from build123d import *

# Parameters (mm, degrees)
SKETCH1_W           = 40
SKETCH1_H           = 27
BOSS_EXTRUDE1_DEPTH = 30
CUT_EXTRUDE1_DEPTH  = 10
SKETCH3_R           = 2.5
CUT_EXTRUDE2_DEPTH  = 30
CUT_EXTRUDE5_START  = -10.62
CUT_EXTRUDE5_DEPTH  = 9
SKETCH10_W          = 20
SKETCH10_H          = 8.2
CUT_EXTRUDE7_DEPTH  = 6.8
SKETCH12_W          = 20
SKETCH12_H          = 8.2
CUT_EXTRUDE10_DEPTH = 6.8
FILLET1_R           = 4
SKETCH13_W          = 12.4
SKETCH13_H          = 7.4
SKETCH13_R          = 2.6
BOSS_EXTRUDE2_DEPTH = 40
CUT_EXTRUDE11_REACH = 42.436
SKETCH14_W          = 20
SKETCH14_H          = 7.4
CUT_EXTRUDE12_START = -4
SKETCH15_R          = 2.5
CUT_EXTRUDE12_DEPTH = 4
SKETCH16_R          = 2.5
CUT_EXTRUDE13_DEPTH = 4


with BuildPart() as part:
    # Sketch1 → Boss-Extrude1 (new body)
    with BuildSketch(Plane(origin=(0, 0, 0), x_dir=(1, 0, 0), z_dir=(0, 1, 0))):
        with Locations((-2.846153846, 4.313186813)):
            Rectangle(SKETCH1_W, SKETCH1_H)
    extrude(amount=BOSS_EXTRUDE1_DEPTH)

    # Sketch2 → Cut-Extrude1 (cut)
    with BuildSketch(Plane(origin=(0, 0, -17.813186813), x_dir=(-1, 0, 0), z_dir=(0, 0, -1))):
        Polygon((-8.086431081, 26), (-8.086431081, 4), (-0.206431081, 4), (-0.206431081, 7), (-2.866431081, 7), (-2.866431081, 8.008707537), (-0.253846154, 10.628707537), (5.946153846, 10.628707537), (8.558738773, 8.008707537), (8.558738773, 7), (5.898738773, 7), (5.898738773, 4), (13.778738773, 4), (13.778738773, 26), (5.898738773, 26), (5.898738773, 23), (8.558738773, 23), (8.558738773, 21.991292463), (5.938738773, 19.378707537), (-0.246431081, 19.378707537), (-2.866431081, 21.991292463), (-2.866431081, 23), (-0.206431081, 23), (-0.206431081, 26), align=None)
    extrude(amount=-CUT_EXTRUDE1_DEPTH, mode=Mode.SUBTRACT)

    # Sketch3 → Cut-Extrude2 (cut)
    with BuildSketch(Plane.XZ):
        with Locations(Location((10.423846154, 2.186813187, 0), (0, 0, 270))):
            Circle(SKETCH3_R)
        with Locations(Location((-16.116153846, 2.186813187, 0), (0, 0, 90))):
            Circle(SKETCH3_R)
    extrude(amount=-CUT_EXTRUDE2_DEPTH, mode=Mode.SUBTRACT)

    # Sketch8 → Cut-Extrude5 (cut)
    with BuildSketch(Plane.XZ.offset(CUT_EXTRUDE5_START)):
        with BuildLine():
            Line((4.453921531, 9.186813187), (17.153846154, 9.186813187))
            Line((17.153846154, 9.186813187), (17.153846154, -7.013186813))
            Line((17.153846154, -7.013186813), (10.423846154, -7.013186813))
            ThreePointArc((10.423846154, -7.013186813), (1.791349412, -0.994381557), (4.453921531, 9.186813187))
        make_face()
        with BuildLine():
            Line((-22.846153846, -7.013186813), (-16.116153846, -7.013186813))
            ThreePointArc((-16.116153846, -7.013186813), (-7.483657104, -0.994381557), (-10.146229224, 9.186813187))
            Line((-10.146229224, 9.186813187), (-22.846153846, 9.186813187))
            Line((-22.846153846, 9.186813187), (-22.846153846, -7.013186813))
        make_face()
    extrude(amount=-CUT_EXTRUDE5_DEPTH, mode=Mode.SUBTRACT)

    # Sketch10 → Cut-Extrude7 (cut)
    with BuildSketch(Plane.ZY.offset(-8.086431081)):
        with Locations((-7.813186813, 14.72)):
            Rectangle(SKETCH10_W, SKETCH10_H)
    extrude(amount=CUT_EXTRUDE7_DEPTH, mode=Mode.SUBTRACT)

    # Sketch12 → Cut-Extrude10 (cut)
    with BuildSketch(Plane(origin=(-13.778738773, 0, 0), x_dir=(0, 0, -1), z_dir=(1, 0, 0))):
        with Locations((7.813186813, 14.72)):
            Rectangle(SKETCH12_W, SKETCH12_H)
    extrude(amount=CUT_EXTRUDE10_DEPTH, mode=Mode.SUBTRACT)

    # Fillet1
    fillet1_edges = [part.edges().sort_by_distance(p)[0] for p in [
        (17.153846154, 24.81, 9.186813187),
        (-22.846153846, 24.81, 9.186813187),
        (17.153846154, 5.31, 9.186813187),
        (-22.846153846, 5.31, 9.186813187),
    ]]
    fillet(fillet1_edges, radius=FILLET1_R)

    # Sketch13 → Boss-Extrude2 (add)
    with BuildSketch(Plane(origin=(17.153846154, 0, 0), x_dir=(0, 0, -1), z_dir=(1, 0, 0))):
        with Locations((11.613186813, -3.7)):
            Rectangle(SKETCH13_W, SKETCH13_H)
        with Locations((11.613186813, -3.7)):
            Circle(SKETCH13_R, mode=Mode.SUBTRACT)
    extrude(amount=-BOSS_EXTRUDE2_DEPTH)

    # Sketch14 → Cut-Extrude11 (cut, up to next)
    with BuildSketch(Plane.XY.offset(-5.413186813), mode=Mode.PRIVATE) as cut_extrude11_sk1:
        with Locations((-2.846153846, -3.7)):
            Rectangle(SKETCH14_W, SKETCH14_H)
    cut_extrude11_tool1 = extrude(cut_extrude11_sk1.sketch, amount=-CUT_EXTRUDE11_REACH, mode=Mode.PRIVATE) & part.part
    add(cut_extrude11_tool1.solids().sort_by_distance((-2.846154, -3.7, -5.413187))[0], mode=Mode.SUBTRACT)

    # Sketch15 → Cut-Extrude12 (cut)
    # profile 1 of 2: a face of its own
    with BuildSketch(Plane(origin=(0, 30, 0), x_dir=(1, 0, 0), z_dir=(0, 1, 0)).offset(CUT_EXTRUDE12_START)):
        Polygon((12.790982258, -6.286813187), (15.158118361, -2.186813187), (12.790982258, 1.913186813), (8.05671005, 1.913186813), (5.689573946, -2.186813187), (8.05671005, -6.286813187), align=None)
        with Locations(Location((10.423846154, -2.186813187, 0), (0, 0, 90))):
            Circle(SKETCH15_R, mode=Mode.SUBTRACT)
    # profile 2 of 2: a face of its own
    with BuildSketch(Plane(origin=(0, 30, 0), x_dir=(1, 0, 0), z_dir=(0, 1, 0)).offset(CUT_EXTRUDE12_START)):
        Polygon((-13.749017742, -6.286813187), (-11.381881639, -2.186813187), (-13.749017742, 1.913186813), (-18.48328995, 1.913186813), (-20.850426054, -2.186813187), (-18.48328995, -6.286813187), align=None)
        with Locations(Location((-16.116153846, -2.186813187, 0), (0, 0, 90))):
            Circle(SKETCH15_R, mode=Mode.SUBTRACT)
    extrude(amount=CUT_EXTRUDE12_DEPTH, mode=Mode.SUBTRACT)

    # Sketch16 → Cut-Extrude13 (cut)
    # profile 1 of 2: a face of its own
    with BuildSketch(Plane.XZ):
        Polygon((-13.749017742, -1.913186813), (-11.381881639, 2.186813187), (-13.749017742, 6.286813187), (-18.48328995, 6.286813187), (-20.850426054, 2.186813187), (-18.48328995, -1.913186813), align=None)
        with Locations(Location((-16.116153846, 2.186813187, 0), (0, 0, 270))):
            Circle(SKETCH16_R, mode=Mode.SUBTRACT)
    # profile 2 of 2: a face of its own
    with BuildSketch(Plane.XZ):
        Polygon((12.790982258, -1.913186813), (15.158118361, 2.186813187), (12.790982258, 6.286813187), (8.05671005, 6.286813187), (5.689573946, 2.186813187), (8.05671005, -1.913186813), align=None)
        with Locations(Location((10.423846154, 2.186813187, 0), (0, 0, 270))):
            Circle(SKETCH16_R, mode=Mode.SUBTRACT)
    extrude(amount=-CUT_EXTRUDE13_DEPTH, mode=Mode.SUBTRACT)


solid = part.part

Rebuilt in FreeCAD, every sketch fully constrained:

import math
import FreeCAD as App
import Part
import Sketcher
from FreeCAD import Vector
Q = App.Units.Quantity


def edges_at(feature, points):
    """Names of the edges that pass closest to the given points."""
    edges = feature.Shape.Edges
    near = lambda p: min(range(len(edges)), key=lambda i: edges[i].distToShape(Part.Vertex(*p))[0])
    return sorted({f"Edge{near(p) + 1}" for p in points})


def add_polygon(sketch, points):
    """Adds a closed chain of lines whose ends are joined by coincident constraints."""
    first, n = sketch.GeometryCount, len(points)
    for a, b in zip(points, points[1:] + points[:1]):
        sketch.addGeometry(Part.LineSegment(App.Vector(*a, 0), App.Vector(*b, 0)), False)
    for i in range(n):
        sketch.addConstraint(Sketcher.Constraint("Coincident", first + i, 2, first + (i + 1) % n, 1))

doc = App.newDocument("Part")
body = doc.addObject("PartDesign::Body", "Body")

sketch1 = body.newObject("Sketcher::SketchObject", "Sketch")
sketch1.AttachmentSupport = (doc.getObject("XZ_Plane"), [""])
sketch1.MapMode = "FlatFace"
add_polygon(sketch1, [(-23, -18), (-23, 9), (17, 9), (17, -18)])
sketch1.addConstraint([
    Sketcher.Constraint("Vertical", 0),
    Sketcher.Constraint("Horizontal", 1),
    Sketcher.Constraint("Vertical", 2),
    Sketcher.Constraint("Horizontal", 3),
    Sketcher.Constraint("DistanceX", 1, 1, 1, 2, 40.0),
    Sketcher.Constraint("DistanceY", 0, 1, 0, 2, 27.0),
    Sketcher.Constraint("DistanceX", 0, 2, -1, 1, 22.846154),
    Sketcher.Constraint("DistanceY", -1, 1, 0, 2, 9.186813),
])
pad1 = body.newObject("PartDesign::Pad", "Pad")
pad1.Profile = sketch1
pad1.Length = 30
pad1.Reversed = True

sketch2 = body.newObject("Sketcher::SketchObject", "Sketch001")
sketch2.AttachmentSupport = (doc.getObject("XY_Plane"), [""])
sketch2.MapMode = "FlatFace"
sketch2.AttachmentOffset = App.Placement(Vector(0, 0, -17.813187), App.Rotation())
add_polygon(sketch2, [(8.1, 26), (8.1, 4), (0.2, 4), (0.2, 7), (2.9, 7), (2.9, 8), (0.3, 10.6), (-5.9, 10.6), (-8.6, 8), (-8.6, 7), (-5.9, 7), (-5.9, 4), (-13.8, 4), (-13.8, 26), (-5.9, 26), (-5.9, 23), (-8.6, 23), (-8.6, 22), (-5.9, 19.4), (0.2, 19.4), (2.9, 22), (2.9, 23), (0.2, 23), (0.2, 26)])
sketch2.addConstraint([
    Sketcher.Constraint("Vertical", 0),
    Sketcher.Constraint("Horizontal", 1),
    Sketcher.Constraint("Vertical", 2),
    Sketcher.Constraint("Horizontal", 3),
    Sketcher.Constraint("Vertical", 4),
    Sketcher.Constraint("Horizontal", 6),
    Sketcher.Constraint("Vertical", 8),
    Sketcher.Constraint("Horizontal", 9),
    Sketcher.Constraint("Vertical", 10),
    Sketcher.Constraint("Horizontal", 11),
    Sketcher.Constraint("Vertical", 12),
    Sketcher.Constraint("Horizontal", 13),
    Sketcher.Constraint("Vertical", 14),
    Sketcher.Constraint("Horizontal", 15),
    Sketcher.Constraint("Vertical", 16),
    Sketcher.Constraint("Horizontal", 18),
    Sketcher.Constraint("Vertical", 20),
    Sketcher.Constraint("Horizontal", 21),
    Sketcher.Constraint("Vertical", 22),
    Sketcher.Constraint("Horizontal", 23),
    Sketcher.Constraint("Perpendicular", 7, 17),
    Sketcher.Constraint("Perpendicular", 5, 19),
    Sketcher.Constraint("Horizontal", 4, 2, 7, 2),
    Sketcher.Constraint("Horizontal", 3, 2, 8, 2),
    Sketcher.Constraint("Horizontal", 1, 2, 10, 2),
    Sketcher.Constraint("Horizontal", 16, 2, 19, 2),
    Sketcher.Constraint("Horizontal", 15, 2, 20, 2),
    Sketcher.Constraint("Horizontal", 13, 2, 22, 2),
    Sketcher.Constraint("Vertical", 10, 2, 13, 2),
    Sketcher.Constraint("Vertical", 8, 2, 15, 2),
    Sketcher.Constraint("Vertical", 4, 2, 19, 2),
    Sketcher.Constraint("Vertical", 2, 2, 21, 2),
    Sketcher.Constraint("Equal", 3, 9),
    Sketcher.Constraint("Equal", 1, 11),
    Sketcher.Constraint("Equal", 10, 14),
    Sketcher.Constraint("Equal", 8, 16),
    Sketcher.Constraint("Equal", 5, 7),
    Sketcher.Constraint("Equal", 7, 17),
    Sketcher.Constraint("DistanceY", 0, 2, 0, 1, 22.0),
    Sketcher.Constraint("DistanceY", 2, 1, 2, 2, 3.0),
    Sketcher.Constraint("DistanceX", 6, 2, 6, 1, 6.2),
    Sketcher.Constraint("DistanceY", -1, 1, 0, 2, 4.0),
    Sketcher.Constraint("Distance", 5, 3.7),
    Sketcher.Constraint("DistanceX", 1, 2, 1, 1, 7.88),
    Sketcher.Constraint("DistanceX", 3, 1, 3, 2, 2.66),
    Sketcher.Constraint("DistanceY", 4, 2, 5, 2, 2.62),
    Sketcher.Constraint("DistanceY", 6, 2, 17, 2, 8.75),
    Sketcher.Constraint("DistanceX", -1, 1, 0, 2, 8.086431),
])
pocket1 = body.newObject("PartDesign::Pocket", "Pocket")
pocket1.Profile = sketch2
pocket1.Length = 10
pocket1.Reversed = True

sketch3 = body.newObject("Sketcher::SketchObject", "Sketch002")
sketch3.AttachmentSupport = (doc.getObject("XZ_Plane"), [""])
sketch3.MapMode = "FlatFace"
sketch3.addGeometry([
    Part.Circle(Vector(10.4, 2.2, 0), Vector(0, 0, 1), 2.5),
    Part.Circle(Vector(-16.1, 2.2, 0), Vector(0, 0, 1), 2.5),
], False)
sketch3.addConstraint([
    Sketcher.Constraint("Equal", 0, 1),
    Sketcher.Constraint("Horizontal", 0, 3, 1, 3),
    Sketcher.Constraint("Diameter", 0, 5.0),
    Sketcher.Constraint("DistanceX", 1, 3, 0, 3, 26.54),
    Sketcher.Constraint("DistanceX", -1, 1, 0, 3, 10.423846),
    Sketcher.Constraint("DistanceY", -1, 1, 0, 3, 2.186813),
])
pocket2 = body.newObject("PartDesign::Pocket", "Pocket001")
pocket2.Profile = sketch3
pocket2.Length = 30

sketch4 = body.newObject("Sketcher::SketchObject", "Sketch003")
sketch4.AttachmentSupport = (doc.getObject("XZ_Plane"), [""])
sketch4.MapMode = "FlatFace"
sketch4.AttachmentOffset = App.Placement(Vector(0, 0, -10.62), App.Rotation())
sketch4.addGeometry([
    Part.LineSegment(Vector(17, 9, 0), Vector(4, 9, 0)),
    Part.ArcOfCircle(Part.Circle(Vector(10, 2, 0), Vector(0, 0, 1), 9), math.radians(130), math.radians(270)),
    Part.LineSegment(Vector(10, -7, 0), Vector(17, -7, 0)),
    Part.LineSegment(Vector(17, -7, 0), Vector(17, 9, 0)),
    Part.LineSegment(Vector(-23, -7, 0), Vector(-16, -7, 0)),
    Part.ArcOfCircle(Part.Circle(Vector(-16, 2, 0), Vector(0, 0, 1), 9), math.radians(-90), math.radians(50)),
    Part.LineSegment(Vector(-10, 9, 0), Vector(-23, 9, 0)),
    Part.LineSegment(Vector(-23, 9, 0), Vector(-23, -7, 0)),
], False)
sketch4.addConstraint([
    Sketcher.Constraint("Coincident", 0, 2, 1, 1),
    Sketcher.Constraint("Tangent", 1, 2, 2, 1),
    Sketcher.Constraint("Coincident", 2, 2, 3, 1),
    Sketcher.Constraint("Coincident", 3, 2, 0, 1),
    Sketcher.Constraint("Tangent", 4, 2, 5, 1),
    Sketcher.Constraint("Coincident", 5, 2, 6, 1),
    Sketcher.Constraint("Coincident", 6, 2, 7, 1),
    Sketcher.Constraint("Coincident", 7, 2, 4, 1),
    Sketcher.Constraint("Horizontal", 0),
    Sketcher.Constraint("Horizontal", 2),
    Sketcher.Constraint("Vertical", 3),
    Sketcher.Constraint("Horizontal", 4),
    Sketcher.Constraint("Horizontal", 6),
    Sketcher.Constraint("Vertical", 7),
    Sketcher.Constraint("Equal", 1, 5),
    Sketcher.Constraint("Horizontal", 1, 3, 5, 3),
    Sketcher.Constraint("Horizontal", 3, 2, 5, 2),
    Sketcher.Constraint("Equal", 2, 4),
    Sketcher.Constraint("Radius", 1, 9.2),
    Sketcher.Constraint("DistanceY", 3, 1, 3, 2, 16.2),
    Sketcher.Constraint("DistanceX", 2, 1, 2, 2, 6.73),
    Sketcher.Constraint("DistanceX", 5, 3, 1, 3, 26.54),
    Sketcher.Constraint("DistanceX", -1, 1, 0, 2, 4.453922),
    Sketcher.Constraint("DistanceY", -1, 1, 1, 3, 2.186813),
])
pocket3 = body.newObject("PartDesign::Pocket", "Pocket002")
pocket3.Profile = sketch4
pocket3.Length = 9

sketch5 = body.newObject("Sketcher::SketchObject", "Sketch004")
sketch5.AttachmentSupport = (doc.getObject("YZ_Plane"), [""])
sketch5.MapMode = "FlatFace"
sketch5.AttachmentOffset = App.Placement(Vector(0, 0, 8.086431), App.Rotation())
add_polygon(sketch5, [(19, -18), (11, -18), (11, 2), (19, 2)])
sketch5.addConstraint([
    Sketcher.Constraint("Horizontal", 0),
    Sketcher.Constraint("Vertical", 1),
    Sketcher.Constraint("Horizontal", 2),
    Sketcher.Constraint("Vertical", 3),
    Sketcher.Constraint("DistanceY", 1, 1, 1, 2, 20.0),
    Sketcher.Constraint("DistanceX", 0, 2, 0, 1, 8.2),
    Sketcher.Constraint("DistanceX", -1, 1, 0, 2, 10.62),
    Sketcher.Constraint("DistanceY", 0, 2, -1, 1, 17.813187),
])
pocket4 = body.newObject("PartDesign::Pocket", "Pocket003")
pocket4.Profile = sketch5
pocket4.Length = 6.8

sketch6 = body.newObject("Sketcher::SketchObject", "Sketch005")
sketch6.AttachmentSupport = (doc.getObject("YZ_Plane"), [""])
sketch6.MapMode = "FlatFace"
sketch6.AttachmentOffset = App.Placement(Vector(0, 0, -13.778739), App.Rotation())
add_polygon(sketch6, [(19, 2), (11, 2), (11, -18), (19, -18)])
sketch6.addConstraint([
    Sketcher.Constraint("Horizontal", 0),
    Sketcher.Constraint("Vertical", 1),
    Sketcher.Constraint("Horizontal", 2),
    Sketcher.Constraint("Vertical", 3),
    Sketcher.Constraint("DistanceY", 1, 2, 1, 1, 20.0),
    Sketcher.Constraint("DistanceX", 0, 2, 0, 1, 8.2),
    Sketcher.Constraint("DistanceX", -1, 1, 0, 2, 10.62),
    Sketcher.Constraint("DistanceY", -1, 1, 0, 2, 2.186813),
])
pocket5 = body.newObject("PartDesign::Pocket", "Pocket004")
pocket5.Profile = sketch6
pocket5.Length = 6.8
pocket5.Reversed = True
doc.recompute()

fillet = body.newObject("PartDesign::Fillet", "Fillet")
fillet.Base = (pocket5, edges_at(pocket5, [
    (17.154, 24.81, 9.187),
    (-22.846, 24.81, 9.187),
    (17.154, 5.31, 9.187),
    (-22.846, 5.31, 9.187),
]))
fillet.Radius = 4

sketch7 = body.newObject("Sketcher::SketchObject", "Sketch006")
sketch7.AttachmentSupport = (doc.getObject("YZ_Plane"), [""])
sketch7.MapMode = "FlatFace"
sketch7.AttachmentOffset = App.Placement(Vector(0, 0, 17.153846), App.Rotation())
add_polygon(sketch7, [(0, -5.4), (-7.4, -5.4), (-7.4, -17.8), (0, -17.8)])
sketch7.addGeometry(Part.Circle(Vector(-3.7, -11.6, 0), Vector(0, 0, 1), 2.6), False)
sketch7.addConstraint([
    Sketcher.Constraint("Horizontal", 0),
    Sketcher.Constraint("Vertical", 1),
    Sketcher.Constraint("Horizontal", 2),
    Sketcher.Constraint("Vertical", 3),
    Sketcher.Constraint("PointOnObject", 2, 2, -2),
    Sketcher.Constraint("Diameter", 4, 5.2),
    Sketcher.Constraint("DistanceX", 0, 2, 0, 1, 7.4),
    Sketcher.Constraint("DistanceY", 1, 2, 1, 1, 12.4),
    Sketcher.Constraint("DistanceX", 4, 3, -1, 1, 3.7),
    Sketcher.Constraint("DistanceY", 4, 3, 0, 2, 6.2),
    Sketcher.Constraint("DistanceY", 4, 3, -1, 1, 11.613187),
])
pad2 = body.newObject("PartDesign::Pad", "Pad001")
pad2.Profile = sketch7
pad2.Length = 40
pad2.Reversed = True

sketch8 = body.newObject("Sketcher::SketchObject", "Sketch007")
sketch8.AttachmentSupport = (doc.getObject("XY_Plane"), [""])
sketch8.MapMode = "FlatFace"
sketch8.AttachmentOffset = App.Placement(Vector(0, 0, -5.413187), App.Rotation())
add_polygon(sketch8, [(-13, 0), (-13, -7), (7, -7), (7, 0)])
sketch8.addConstraint([
    Sketcher.Constraint("Vertical", 0),
    Sketcher.Constraint("Horizontal", 1),
    Sketcher.Constraint("Vertical", 2),
    Sketcher.Constraint("Horizontal", 3),
    Sketcher.Constraint("PointOnObject", 2, 2, -1),
    Sketcher.Constraint("DistanceX", 1, 1, 1, 2, 20.0),
    Sketcher.Constraint("DistanceY", 0, 2, 0, 1, 7.4),
    Sketcher.Constraint("DistanceX", 0, 2, -1, 1, 12.846154),
])
pocket6 = body.newObject("PartDesign::Pocket", "Pocket005")
pocket6.Profile = sketch8
pocket6.Type = "UpToFirst"

sketch9 = body.newObject("Sketcher::SketchObject", "Sketch008")
sketch9.AttachmentSupport = (doc.getObject("XZ_Plane"), [""])
sketch9.MapMode = "FlatFace"
sketch9.AttachmentOffset = App.Placement(Vector(0, 0, -26), App.Rotation())
add_polygon(sketch9, [(12.8, 6.3), (15.2, 2.2), (12.8, -1.9), (8.1, -1.9), (5.7, 2.2), (8.1, 6.3)])
sketch9.addGeometry(Part.Circle(Vector(10.4, 2.2, 0), Vector(0, 0, 1), 2.5), False)
add_polygon(sketch9, [(-13.7, 6.3), (-11.4, 2.2), (-13.7, -1.9), (-18.5, -1.9), (-20.9, 2.2), (-18.5, 6.3)])
sketch9.addGeometry(Part.Circle(Vector(-16.1, 2.2, 0), Vector(0, 0, 1), 2.5), False)
sketch9.addConstraint([
    Sketcher.Constraint("Horizontal", 2),
    Sketcher.Constraint("Horizontal", 5),
    Sketcher.Constraint("Horizontal", 9),
    Sketcher.Constraint("Horizontal", 12),
    Sketcher.Constraint("Equal", 6, 13),
    Sketcher.Constraint("Parallel", 0, 3),
    Sketcher.Constraint("Parallel", 1, 4),
    Sketcher.Constraint("Parallel", 3, 7),
    Sketcher.Constraint("Parallel", 4, 8),
    Sketcher.Constraint("Parallel", 7, 10),
    Sketcher.Constraint("Parallel", 8, 11),
    Sketcher.Constraint("Horizontal", 6, 3, 13, 3),
    Sketcher.Constraint("Horizontal", 13, 3, 0, 2),
    Sketcher.Constraint("Horizontal", 0, 2, 3, 2),
    Sketcher.Constraint("Horizontal", 3, 2, 7, 2),
    Sketcher.Constraint("Horizontal", 2, 2, 8, 2),
    Sketcher.Constraint("Horizontal", 7, 2, 10, 2),
    Sketcher.Constraint("Horizontal", 5, 2, 11, 2),
    Sketcher.Constraint("Vertical", 2, 2, 4, 2),
    Sketcher.Constraint("Vertical", 1, 2, 5, 2),
    Sketcher.Constraint("Equal", 5, 9),
    Sketcher.Constraint("Diameter", 6, 5.0),
    Sketcher.Constraint("Angle", 0, Q("-60 deg")),
    Sketcher.Constraint("DistanceY", 1, 2, 0, 2, 4.1),
    Sketcher.Constraint("DistanceX", 13, 3, 6, 3, 26.54),
    Sketcher.Constraint("DistanceX", 9, 2, 2, 2, 26.54),
    Sketcher.Constraint("DistanceX", 2, 2, 2, 1, 4.734272),
    Sketcher.Constraint("DistanceX", -1, 1, 0, 2, 15.158118),
    Sketcher.Constraint("DistanceX", -1, 1, 6, 3, 10.423846),
    Sketcher.Constraint("DistanceY", -1, 1, 6, 3, 2.186813),
])
pocket7 = body.newObject("PartDesign::Pocket", "Pocket006")
pocket7.Profile = sketch9
pocket7.Length = 4

sketch10 = body.newObject("Sketcher::SketchObject", "Sketch009")
sketch10.AttachmentSupport = (doc.getObject("XZ_Plane"), [""])
sketch10.MapMode = "FlatFace"
add_polygon(sketch10, [(-13.7, -1.9), (-11.4, 2.2), (-13.7, 6.3), (-18.5, 6.3), (-20.9, 2.2), (-18.5, -1.9)])
sketch10.addGeometry(Part.Circle(Vector(-16.1, 2.2, 0), Vector(0, 0, 1), 2.5), False)
add_polygon(sketch10, [(12.8, -1.9), (15.2, 2.2), (12.8, 6.3), (8.1, 6.3), (5.7, 2.2), (8.1, -1.9)])
sketch10.addGeometry(Part.Circle(Vector(10.4, 2.2, 0), Vector(0, 0, 1), 2.5), False)
sketch10.addConstraint([
    Sketcher.Constraint("Horizontal", 2),
    Sketcher.Constraint("Horizontal", 5),
    Sketcher.Constraint("Horizontal", 9),
    Sketcher.Constraint("Horizontal", 12),
    Sketcher.Constraint("Equal", 6, 13),
    Sketcher.Constraint("Parallel", 0, 3),
    Sketcher.Constraint("Parallel", 1, 4),
    Sketcher.Constraint("Parallel", 3, 7),
    Sketcher.Constraint("Parallel", 4, 8),
    Sketcher.Constraint("Parallel", 7, 10),
    Sketcher.Constraint("Parallel", 8, 11),
    Sketcher.Constraint("Horizontal", 6, 3, 13, 3),
    Sketcher.Constraint("Horizontal", 13, 3, 0, 2),
    Sketcher.Constraint("Horizontal", 0, 2, 3, 2),
    Sketcher.Constraint("Horizontal", 3, 2, 7, 2),
    Sketcher.Constraint("Horizontal", 2, 2, 8, 2),
    Sketcher.Constraint("Horizontal", 7, 2, 10, 2),
    Sketcher.Constraint("Horizontal", 5, 2, 11, 2),
    Sketcher.Constraint("Vertical", 2, 2, 4, 2),
    Sketcher.Constraint("Vertical", 1, 2, 5, 2),
    Sketcher.Constraint("Equal", 5, 9),
    Sketcher.Constraint("Diameter", 6, 5.0),
    Sketcher.Constraint("Angle", 0, Q("60 deg")),
    Sketcher.Constraint("DistanceY", 0, 2, 1, 2, 4.1),
    Sketcher.Constraint("DistanceX", 6, 3, 13, 3, 26.54),
    Sketcher.Constraint("DistanceX", 0, 2, 7, 2, 26.54),
    Sketcher.Constraint("DistanceX", 2, 2, 2, 1, 4.734272),
    Sketcher.Constraint("DistanceX", 0, 2, -1, 1, 11.381882),
    Sketcher.Constraint("DistanceX", 6, 3, -1, 1, 16.116154),
    Sketcher.Constraint("DistanceY", -1, 1, 6, 3, 2.186813),
])
pocket8 = body.newObject("PartDesign::Pocket", "Pocket007")
pocket8.Profile = sketch10
pocket8.Length = 4

doc.recompute()
